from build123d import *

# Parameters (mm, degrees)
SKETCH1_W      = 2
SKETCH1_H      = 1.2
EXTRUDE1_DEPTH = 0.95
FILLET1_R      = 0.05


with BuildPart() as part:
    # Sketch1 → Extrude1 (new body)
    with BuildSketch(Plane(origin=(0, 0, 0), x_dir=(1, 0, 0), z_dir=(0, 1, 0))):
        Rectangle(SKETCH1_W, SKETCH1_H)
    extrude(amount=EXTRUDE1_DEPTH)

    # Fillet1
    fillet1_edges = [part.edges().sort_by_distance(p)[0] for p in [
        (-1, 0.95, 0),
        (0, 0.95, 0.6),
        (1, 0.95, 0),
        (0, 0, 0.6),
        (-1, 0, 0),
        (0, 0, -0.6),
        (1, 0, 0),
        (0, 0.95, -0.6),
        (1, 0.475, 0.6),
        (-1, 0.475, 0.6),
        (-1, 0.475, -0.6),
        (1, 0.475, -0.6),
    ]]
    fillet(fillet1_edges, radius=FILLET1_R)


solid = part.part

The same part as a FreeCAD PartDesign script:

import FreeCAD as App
import Part
import Sketcher


def add_polygon(sketch, points):
    """Adds a closed chain of lines whose ends are joined by coincident constraints."""
    first, n = sketch.GeometryCount, len(points)
    for a, b in zip(points, points[1:] + points[:1]):
        sketch.addGeometry(Part.LineSegment(App.Vector(*a, 0), App.Vector(*b, 0)), False)
    for i in range(n):
        sketch.addConstraint(Sketcher.Constraint("Coincident", first + i, 2, first + (i + 1) % n, 1))

doc = App.newDocument("Part")
body = doc.addObject("PartDesign::Body", "Body")

sketch1 = body.newObject("Sketcher::SketchObject", "Sketch")
sketch1.AttachmentSupport = (doc.getObject("XZ_Plane"), [""])
sketch1.MapMode = "FlatFace"
add_polygon(sketch1, [(-1, -0.6), (-1, 0.6), (1, 0.6), (1, -0.6)])
sketch1.addConstraint(Sketcher.Constraint("Vertical", 0))
sketch1.addConstraint(Sketcher.Constraint("Horizontal", 1))
sketch1.addConstraint(Sketcher.Constraint("Vertical", 2))
sketch1.addConstraint(Sketcher.Constraint("Horizontal", 3))
sketch1.addConstraint(Sketcher.Constraint("Symmetric", 0, 2, 2, 2, -1, 1))
sketch1.addConstraint(Sketcher.Constraint("DistanceX", 1, 1, 1, 2, 2.0))
sketch1.addConstraint(Sketcher.Constraint("DistanceY", 0, 1, 0, 2, 1.2))
pad1 = body.newObject("PartDesign::Pad", "Pad")
pad1.Profile = sketch1
pad1.Length = 0.95
pad1.Reversed = True
doc.recompute()

fillet = body.newObject("PartDesign::Fillet", "Fillet")
fillet.Base = (pad1, ["Edge1"])
fillet.UseAllEdges = True
fillet.Radius = 0.05

doc.recompute()
